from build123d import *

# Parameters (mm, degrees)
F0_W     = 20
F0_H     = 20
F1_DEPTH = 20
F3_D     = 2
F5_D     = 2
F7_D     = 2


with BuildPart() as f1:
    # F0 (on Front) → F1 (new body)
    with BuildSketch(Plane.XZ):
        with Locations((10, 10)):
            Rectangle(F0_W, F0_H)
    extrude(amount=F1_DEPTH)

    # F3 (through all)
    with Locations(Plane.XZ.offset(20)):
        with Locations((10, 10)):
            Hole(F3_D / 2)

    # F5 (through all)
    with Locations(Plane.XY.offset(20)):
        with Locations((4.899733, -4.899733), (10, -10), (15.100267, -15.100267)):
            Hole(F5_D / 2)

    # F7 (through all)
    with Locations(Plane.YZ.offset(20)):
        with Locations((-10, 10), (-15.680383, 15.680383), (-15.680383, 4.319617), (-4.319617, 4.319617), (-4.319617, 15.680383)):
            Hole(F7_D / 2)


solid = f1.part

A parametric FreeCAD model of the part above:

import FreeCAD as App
import Part
import Sketcher


def add_polygon(sketch, points):
    """Adds a closed chain of lines whose ends are joined by coincident constraints."""
    first, n = sketch.GeometryCount, len(points)
    for a, b in zip(points, points[1:] + points[:1]):
        sketch.addGeometry(Part.LineSegment(App.Vector(*a, 0), App.Vector(*b, 0)), False)
    for i in range(n):
        sketch.addConstraint(Sketcher.Constraint("Coincident", first + i, 2, first + (i + 1) % n, 1))

doc = App.newDocument("Part")
body = doc.addObject("PartDesign::Body", "Body")

sketch1 = body.newObject("Sketcher::SketchObject", "Sketch")
sketch1.AttachmentSupport = (doc.getObject("XZ_Plane"), [""])
sketch1.MapMode = "FlatFace"
add_polygon(sketch1, [(0, 20), (0, 0), (20, 0), (20, 20)])
sketch1.addConstraint([
    Sketcher.Constraint("Vertical", 0),
    Sketcher.Constraint("Horizontal", 1),
    Sketcher.Constraint("Vertical", 2),
    Sketcher.Constraint("Horizontal", 3),
    Sketcher.Constraint("Coincident", 0, 2, -1, 1),
    Sketcher.Constraint("Equal", 3, 0),
    Sketcher.Constraint("DistanceX", 1, 1, 1, 2, 20.0),
])
pad1 = body.newObject("PartDesign::Pad", "Pad")
pad1.Profile = sketch1
pad1.Length = 20

sketch2 = body.newObject("Sketcher::SketchObject", "Sketch001")
sketch2.AttachmentSupport = (doc.getObject("XZ_Plane"), [""])
sketch2.MapMode = "FlatFace"
sketch2.AttachmentOffset = App.Placement(App.Vector(0, 0, 20), App.Rotation())
sketch2.addGeometry(Part.Circle(App.Vector(10, 10, 0), App.Vector(0, 0, 1), 1), False)
sketch2.addConstraint([
    Sketcher.Constraint("Diameter", 0, 2.0),
    Sketcher.Constraint("DistanceX", -1, 1, 0, 3, 10.0),
    Sketcher.Constraint("DistanceY", -1, 1, 0, 3, 10.0),
])
doc.recompute()
hole = body.newObject("PartDesign::Hole", "Hole")
hole.Profile = sketch2
hole.ThreadType = "None"
hole.Diameter = 2
hole.DepthType = "ThroughAll"

sketch3 = body.newObject("Sketcher::SketchObject", "Sketch002")
sketch3.AttachmentSupport = (doc.getObject("XY_Plane"), [""])
sketch3.MapMode = "FlatFace"
sketch3.AttachmentOffset = App.Placement(App.Vector(0, 0, 20), App.Rotation())
sketch3.addGeometry([
    Part.Circle(App.Vector(4.9, -4.9, 0), App.Vector(0, 0, 1), 1),
    Part.Circle(App.Vector(10, -10, 0), App.Vector(0, 0, 1), 1),
    Part.Circle(App.Vector(15.1, -15.1, 0), App.Vector(0, 0, 1), 1),
], False)
sketch3.addConstraint([
    Sketcher.Constraint("Equal", 0, 1),
    Sketcher.Constraint("Equal", 1, 2),
    Sketcher.Constraint("Diameter", 0, 2.0),
    Sketcher.Constraint("DistanceX", -1, 1, 1, 3, 10.0),
    Sketcher.Constraint("DistanceY", 1, 3, -1, 1, 10.0),
    Sketcher.Constraint("DistanceX", -1, 1, 0, 3, 4.899733),
    Sketcher.Constraint("DistanceY", 0, 3, -1, 1, 4.899733),
    Sketcher.Constraint("DistanceX", -1, 1, 2, 3, 15.100267),
    Sketcher.Constraint("DistanceY", 2, 3, -1, 1, 15.100267),
])
doc.recompute()
hole2 = body.newObject("PartDesign::Hole", "Hole001")
hole2.Profile = sketch3
hole2.ThreadType = "None"
hole2.Diameter = 2
hole2.DepthType = "ThroughAll"

sketch4 = body.newObject("Sketcher::SketchObject", "Sketch003")
sketch4.AttachmentSupport = (doc.getObject("YZ_Plane"), [""])
sketch4.MapMode = "FlatFace"
sketch4.AttachmentOffset = App.Placement(App.Vector(0, 0, 20), App.Rotation())
sketch4.addGeometry([
    Part.Circle(App.Vector(-10, 10, 0), App.Vector(0, 0, 1), 1),
    Part.Circle(App.Vector(-15.7, 15.7, 0), App.Vector(0, 0, 1), 1),
    Part.Circle(App.Vector(-15.7, 4.3, 0), App.Vector(0, 0, 1), 1),
    Part.Circle(App.Vector(-4.3, 4.3, 0), App.Vector(0, 0, 1), 1),
    Part.Circle(App.Vector(-4.3, 15.7, 0), App.Vector(0, 0, 1), 1),
], False)
sketch4.addConstraint([
    Sketcher.Constraint("Equal", 0, 1),
    Sketcher.Constraint("Equal", 1, 2),
    Sketcher.Constraint("Equal", 2, 3),
    Sketcher.Constraint("Equal", 3, 4),
    Sketcher.Constraint("Horizontal", 2, 3, 3, 3),
    Sketcher.Constraint("Horizontal", 1, 3, 4, 3),
    Sketcher.Constraint("Vertical", 1, 3, 2, 3),
    Sketcher.Constraint("Vertical", 3, 3, 4, 3),
    Sketcher.Constraint("Diameter", 0, 2.0),
    Sketcher.Constraint("DistanceX", 0, 3, -1, 1, 10.0),
    Sketcher.Constraint("DistanceY", -1, 1, 0, 3, 10.0),
    Sketcher.Constraint("DistanceX", 1, 3, -1, 1, 15.680383),
    Sketcher.Constraint("DistanceY", -1, 1, 1, 3, 15.680383),
    Sketcher.Constraint("DistanceY", -1, 1, 2, 3, 4.319617),
    Sketcher.Constraint("DistanceX", 3, 3, -1, 1, 4.319617),
])
doc.recompute()
hole3 = body.newObject("PartDesign::Hole", "Hole002")
hole3.Profile = sketch4
hole3.ThreadType = "None"
hole3.Diameter = 2
hole3.DepthType = "ThroughAll"

doc.recompute()
